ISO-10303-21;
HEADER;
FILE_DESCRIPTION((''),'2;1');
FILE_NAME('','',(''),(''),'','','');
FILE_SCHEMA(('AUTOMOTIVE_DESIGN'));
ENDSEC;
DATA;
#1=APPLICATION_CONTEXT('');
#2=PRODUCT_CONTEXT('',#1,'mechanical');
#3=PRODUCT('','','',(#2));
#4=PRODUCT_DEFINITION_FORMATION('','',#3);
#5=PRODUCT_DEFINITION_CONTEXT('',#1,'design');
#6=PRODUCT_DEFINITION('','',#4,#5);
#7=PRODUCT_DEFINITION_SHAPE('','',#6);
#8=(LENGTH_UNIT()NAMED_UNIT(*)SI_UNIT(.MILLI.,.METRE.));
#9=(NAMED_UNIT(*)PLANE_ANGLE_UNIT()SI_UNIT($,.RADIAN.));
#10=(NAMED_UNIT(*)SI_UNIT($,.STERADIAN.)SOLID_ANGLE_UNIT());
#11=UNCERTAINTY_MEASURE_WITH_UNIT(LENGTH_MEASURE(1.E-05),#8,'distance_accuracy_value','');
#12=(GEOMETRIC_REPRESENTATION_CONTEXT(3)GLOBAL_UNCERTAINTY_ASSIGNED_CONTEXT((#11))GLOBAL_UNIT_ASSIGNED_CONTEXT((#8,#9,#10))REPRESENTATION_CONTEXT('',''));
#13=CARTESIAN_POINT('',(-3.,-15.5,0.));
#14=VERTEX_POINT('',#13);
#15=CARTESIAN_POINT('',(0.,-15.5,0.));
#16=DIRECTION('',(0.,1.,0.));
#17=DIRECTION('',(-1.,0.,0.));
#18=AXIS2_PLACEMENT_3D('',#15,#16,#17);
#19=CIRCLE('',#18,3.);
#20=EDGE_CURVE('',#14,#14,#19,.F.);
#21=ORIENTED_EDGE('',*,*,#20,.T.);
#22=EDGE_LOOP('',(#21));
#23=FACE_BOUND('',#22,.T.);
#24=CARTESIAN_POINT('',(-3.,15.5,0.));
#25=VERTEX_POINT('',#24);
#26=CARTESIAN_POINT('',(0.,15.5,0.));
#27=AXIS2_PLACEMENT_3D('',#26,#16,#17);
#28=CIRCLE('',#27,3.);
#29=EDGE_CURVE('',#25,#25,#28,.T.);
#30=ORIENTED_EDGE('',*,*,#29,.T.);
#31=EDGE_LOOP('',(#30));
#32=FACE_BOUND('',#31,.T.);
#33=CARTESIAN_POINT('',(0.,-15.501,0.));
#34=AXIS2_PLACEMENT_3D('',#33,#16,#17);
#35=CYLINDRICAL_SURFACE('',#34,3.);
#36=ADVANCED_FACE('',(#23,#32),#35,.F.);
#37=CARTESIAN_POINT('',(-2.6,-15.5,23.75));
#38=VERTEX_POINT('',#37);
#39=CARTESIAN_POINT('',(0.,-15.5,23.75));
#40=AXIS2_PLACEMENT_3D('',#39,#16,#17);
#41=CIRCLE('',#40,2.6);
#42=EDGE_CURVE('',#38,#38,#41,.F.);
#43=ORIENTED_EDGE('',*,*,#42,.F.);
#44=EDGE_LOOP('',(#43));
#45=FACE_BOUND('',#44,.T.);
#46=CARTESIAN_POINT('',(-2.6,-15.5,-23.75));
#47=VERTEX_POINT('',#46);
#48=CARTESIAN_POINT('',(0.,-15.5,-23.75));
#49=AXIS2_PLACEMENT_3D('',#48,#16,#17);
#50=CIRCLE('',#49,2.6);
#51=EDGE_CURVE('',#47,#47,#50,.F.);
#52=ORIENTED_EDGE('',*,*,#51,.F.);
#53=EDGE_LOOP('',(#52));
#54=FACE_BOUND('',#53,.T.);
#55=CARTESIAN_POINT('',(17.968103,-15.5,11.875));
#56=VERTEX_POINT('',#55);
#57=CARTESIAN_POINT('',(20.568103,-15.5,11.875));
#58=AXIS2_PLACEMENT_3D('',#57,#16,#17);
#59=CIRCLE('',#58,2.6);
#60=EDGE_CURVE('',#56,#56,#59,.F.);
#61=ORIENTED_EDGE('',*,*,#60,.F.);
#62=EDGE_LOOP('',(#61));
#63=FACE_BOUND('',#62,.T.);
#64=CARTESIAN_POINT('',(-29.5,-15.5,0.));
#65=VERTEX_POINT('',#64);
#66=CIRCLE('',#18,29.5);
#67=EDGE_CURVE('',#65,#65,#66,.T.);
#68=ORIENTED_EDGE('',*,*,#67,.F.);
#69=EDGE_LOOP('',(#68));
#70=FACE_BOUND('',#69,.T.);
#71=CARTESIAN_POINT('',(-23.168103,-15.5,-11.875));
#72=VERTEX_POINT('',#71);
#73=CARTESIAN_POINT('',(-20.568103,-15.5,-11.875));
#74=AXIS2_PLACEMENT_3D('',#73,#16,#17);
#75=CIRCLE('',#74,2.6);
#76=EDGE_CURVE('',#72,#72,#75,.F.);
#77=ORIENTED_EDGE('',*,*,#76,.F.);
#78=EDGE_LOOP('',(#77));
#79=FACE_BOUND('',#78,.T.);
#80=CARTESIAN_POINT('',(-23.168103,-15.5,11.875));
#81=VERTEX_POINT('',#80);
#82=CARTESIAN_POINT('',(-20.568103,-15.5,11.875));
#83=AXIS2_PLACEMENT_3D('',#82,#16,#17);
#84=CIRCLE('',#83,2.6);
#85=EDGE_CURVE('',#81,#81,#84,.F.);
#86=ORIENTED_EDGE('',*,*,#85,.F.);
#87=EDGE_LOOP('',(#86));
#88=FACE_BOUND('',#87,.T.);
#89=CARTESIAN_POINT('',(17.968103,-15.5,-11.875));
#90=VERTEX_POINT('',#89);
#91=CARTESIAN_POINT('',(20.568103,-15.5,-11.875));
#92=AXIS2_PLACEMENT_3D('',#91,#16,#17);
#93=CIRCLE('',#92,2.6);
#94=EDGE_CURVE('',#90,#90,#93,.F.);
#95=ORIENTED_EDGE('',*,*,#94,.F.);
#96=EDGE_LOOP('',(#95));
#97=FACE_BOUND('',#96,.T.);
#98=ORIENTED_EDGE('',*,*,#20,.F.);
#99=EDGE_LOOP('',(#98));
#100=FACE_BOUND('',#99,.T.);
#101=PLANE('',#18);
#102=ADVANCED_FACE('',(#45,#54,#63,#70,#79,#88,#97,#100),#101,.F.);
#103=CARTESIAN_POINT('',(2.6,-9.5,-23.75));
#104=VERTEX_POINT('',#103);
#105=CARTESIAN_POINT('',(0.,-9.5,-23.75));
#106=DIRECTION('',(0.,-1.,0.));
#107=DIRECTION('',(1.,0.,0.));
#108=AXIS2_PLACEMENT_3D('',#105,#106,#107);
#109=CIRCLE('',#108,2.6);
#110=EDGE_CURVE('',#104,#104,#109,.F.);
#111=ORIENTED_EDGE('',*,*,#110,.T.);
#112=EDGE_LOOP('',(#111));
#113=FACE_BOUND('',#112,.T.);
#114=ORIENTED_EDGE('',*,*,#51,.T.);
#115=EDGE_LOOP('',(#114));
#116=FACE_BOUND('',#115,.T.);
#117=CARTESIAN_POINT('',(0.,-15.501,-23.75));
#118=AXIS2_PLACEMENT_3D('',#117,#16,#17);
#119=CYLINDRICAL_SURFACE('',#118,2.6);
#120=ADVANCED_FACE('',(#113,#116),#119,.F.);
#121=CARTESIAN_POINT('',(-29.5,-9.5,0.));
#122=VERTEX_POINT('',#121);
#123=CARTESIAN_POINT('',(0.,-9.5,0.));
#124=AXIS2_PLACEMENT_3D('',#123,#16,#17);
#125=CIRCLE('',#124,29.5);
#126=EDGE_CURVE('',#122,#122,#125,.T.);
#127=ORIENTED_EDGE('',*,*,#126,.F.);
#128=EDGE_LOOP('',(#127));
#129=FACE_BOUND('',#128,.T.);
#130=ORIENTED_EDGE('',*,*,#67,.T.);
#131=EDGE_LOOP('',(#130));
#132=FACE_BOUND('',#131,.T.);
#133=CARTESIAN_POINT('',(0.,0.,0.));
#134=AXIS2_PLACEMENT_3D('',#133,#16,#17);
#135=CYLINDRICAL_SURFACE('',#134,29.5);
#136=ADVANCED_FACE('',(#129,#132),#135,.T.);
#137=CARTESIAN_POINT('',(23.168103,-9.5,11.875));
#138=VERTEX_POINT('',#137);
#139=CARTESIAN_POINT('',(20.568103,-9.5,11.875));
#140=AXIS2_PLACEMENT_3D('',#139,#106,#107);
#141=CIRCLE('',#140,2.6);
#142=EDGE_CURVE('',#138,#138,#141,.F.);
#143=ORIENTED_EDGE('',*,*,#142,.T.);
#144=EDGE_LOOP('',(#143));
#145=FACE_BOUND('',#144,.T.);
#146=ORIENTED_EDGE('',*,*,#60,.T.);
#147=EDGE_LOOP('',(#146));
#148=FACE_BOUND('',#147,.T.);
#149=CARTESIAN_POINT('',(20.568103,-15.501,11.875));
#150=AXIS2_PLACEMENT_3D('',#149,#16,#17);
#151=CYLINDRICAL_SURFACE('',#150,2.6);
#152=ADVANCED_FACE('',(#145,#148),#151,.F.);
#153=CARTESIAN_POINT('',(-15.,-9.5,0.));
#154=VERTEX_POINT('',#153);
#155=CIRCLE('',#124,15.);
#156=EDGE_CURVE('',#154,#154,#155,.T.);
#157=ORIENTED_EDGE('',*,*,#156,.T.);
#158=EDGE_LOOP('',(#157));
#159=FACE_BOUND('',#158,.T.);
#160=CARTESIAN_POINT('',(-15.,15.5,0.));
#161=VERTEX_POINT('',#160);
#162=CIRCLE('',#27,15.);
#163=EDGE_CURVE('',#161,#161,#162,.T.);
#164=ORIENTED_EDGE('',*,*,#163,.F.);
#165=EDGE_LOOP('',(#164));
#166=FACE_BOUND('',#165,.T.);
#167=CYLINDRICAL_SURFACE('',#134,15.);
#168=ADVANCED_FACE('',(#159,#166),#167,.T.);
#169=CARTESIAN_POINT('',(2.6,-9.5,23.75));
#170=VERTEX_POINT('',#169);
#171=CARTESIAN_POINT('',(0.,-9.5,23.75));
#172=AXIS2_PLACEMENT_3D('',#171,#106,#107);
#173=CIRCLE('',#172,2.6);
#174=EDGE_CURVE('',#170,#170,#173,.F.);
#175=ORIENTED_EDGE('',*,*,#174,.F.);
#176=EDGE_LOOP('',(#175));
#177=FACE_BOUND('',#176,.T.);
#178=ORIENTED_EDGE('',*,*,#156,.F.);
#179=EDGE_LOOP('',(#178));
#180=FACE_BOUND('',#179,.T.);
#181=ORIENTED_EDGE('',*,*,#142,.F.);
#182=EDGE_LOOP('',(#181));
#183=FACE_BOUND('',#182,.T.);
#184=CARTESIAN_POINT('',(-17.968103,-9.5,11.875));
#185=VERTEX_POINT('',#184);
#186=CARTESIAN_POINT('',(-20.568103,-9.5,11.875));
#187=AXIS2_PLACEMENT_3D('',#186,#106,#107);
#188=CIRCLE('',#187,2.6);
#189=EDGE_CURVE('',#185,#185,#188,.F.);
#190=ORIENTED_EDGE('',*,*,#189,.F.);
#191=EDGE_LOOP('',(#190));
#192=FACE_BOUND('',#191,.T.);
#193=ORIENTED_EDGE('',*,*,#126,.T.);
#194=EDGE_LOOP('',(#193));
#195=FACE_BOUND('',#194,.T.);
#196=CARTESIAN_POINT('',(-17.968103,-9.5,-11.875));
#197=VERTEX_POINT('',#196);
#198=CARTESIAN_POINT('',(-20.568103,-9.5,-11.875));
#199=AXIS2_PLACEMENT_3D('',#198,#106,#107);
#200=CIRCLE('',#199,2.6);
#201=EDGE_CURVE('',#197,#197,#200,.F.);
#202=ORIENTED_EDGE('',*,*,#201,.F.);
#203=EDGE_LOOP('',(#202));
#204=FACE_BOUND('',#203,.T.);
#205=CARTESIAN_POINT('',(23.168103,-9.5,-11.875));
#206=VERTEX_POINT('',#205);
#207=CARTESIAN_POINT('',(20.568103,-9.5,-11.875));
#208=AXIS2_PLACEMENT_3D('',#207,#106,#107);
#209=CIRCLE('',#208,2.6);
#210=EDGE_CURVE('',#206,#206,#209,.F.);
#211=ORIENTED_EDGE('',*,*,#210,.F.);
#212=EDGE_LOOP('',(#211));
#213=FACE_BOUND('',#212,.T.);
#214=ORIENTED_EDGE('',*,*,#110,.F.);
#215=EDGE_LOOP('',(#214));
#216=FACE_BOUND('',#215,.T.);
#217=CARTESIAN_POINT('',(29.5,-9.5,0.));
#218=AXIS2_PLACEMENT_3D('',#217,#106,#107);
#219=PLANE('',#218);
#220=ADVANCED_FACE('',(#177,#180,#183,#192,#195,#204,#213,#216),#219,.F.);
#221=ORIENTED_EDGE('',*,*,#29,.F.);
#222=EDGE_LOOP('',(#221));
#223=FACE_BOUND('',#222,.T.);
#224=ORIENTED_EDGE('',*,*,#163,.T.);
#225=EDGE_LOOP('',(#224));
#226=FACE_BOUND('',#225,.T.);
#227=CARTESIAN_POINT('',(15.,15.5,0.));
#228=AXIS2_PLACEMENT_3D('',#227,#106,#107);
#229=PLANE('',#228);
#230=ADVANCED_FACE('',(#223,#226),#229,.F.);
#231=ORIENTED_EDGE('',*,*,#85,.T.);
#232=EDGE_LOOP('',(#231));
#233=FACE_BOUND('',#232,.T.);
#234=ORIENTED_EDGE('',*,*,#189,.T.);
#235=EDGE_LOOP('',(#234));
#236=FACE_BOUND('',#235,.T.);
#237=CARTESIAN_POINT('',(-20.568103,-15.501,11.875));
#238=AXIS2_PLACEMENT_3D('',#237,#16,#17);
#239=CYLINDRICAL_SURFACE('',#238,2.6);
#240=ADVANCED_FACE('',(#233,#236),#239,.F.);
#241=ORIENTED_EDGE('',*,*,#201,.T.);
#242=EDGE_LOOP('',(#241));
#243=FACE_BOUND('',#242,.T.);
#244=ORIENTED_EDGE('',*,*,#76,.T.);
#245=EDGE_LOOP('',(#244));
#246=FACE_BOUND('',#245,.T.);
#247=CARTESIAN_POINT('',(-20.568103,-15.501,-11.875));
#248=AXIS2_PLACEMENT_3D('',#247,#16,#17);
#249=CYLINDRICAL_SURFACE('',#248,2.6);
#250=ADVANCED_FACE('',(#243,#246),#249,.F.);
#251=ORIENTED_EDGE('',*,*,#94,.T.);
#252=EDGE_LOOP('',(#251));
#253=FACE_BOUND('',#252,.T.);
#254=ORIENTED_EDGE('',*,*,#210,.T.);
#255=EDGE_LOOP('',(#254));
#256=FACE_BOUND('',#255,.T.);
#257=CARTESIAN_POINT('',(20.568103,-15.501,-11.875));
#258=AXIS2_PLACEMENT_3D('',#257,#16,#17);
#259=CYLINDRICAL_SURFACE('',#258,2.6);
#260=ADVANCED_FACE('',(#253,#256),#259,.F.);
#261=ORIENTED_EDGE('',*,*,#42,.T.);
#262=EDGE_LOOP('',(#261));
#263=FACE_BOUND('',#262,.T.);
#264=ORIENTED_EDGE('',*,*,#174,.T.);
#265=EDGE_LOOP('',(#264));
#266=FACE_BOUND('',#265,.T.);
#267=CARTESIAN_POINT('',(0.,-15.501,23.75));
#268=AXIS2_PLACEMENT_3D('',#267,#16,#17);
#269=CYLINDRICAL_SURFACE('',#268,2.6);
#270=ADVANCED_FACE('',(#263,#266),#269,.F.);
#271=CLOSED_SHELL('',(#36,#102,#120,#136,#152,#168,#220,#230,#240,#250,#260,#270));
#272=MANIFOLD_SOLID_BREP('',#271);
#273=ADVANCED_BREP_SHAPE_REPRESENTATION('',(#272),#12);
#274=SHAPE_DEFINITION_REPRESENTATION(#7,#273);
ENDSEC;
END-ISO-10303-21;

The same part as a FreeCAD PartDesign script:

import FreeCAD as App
import Part
import Sketcher

V = App.Vector
Q = App.Units.Quantity


def add_polygon(sketch, points):
    """Adds a closed chain of lines whose ends are joined by coincident constraints."""
    first, n = sketch.GeometryCount, len(points)
    for a, b in zip(points, points[1:] + points[:1]):
        sketch.addGeometry(Part.LineSegment(App.Vector(*a, 0), App.Vector(*b, 0)), False)
    for i in range(n):
        sketch.addConstraint(Sketcher.Constraint("Coincident", first + i, 2, first + (i + 1) % n, 1))

doc = App.newDocument("Part")
body = doc.addObject("PartDesign::Body", "Body")

sketch1 = body.newObject("Sketcher::SketchObject", "Sketch")
sketch1.AttachmentSupport = (doc.getObject("XY_Plane"), [""])
sketch1.MapMode = "FlatFace"
add_polygon(sketch1, [(0, -15.5), (29.5, -15.5), (29.5, -9.5), (15, -9.5), (15, 15.5), (0, 15.5)])
sketch1.addConstraint(Sketcher.Constraint("Horizontal", 0))
sketch1.addConstraint(Sketcher.Constraint("Vertical", 1))
sketch1.addConstraint(Sketcher.Constraint("Horizontal", 2))
sketch1.addConstraint(Sketcher.Constraint("Vertical", 3))
sketch1.addConstraint(Sketcher.Constraint("Horizontal", 4))
sketch1.addConstraint(Sketcher.Constraint("Vertical", 5))
sketch1.addConstraint(Sketcher.Constraint("Symmetric", 4, 2, 5, 2, -1, 1))
sketch1.addConstraint(Sketcher.Constraint("DistanceX", 4, 2, 4, 1, Q("15 mm")))
sketch1.addConstraint(Sketcher.Constraint("DistanceY", 1, 1, 1, 2, Q("6 mm")))
sketch1.addConstraint(Sketcher.Constraint("DistanceY", 3, 1, 3, 2, Q("25 mm")))
sketch1.addConstraint(Sketcher.Constraint("DistanceX", 0, 1, 0, 2, Q("29.5 mm")))
revolution = body.newObject("PartDesign::Revolution", "Revolution")
revolution.Profile = sketch1
revolution.ReferenceAxis = (sketch1, ["V_Axis"])
revolution.Angle = 360

sketch2 = body.newObject("Sketcher::SketchObject", "Sketch001")
sketch2.AttachmentSupport = (doc.getObject("XZ_Plane"), [""])
sketch2.MapMode = "FlatFace"
sketch2.AttachmentOffset = App.Placement(V(0, 0, -15.5), App.Rotation())
sketch2.addGeometry(Part.Circle(V(0, 0, 0), V(0, 0, 1), 3), False)
sketch2.addConstraint(Sketcher.Constraint("Coincident", 0, 3, -1, 1))
sketch2.addConstraint(Sketcher.Constraint("Diameter", 0, Q("6 mm")))
pocket1 = body.newObject("PartDesign::Pocket", "Pocket")
pocket1.Profile = sketch2
pocket1.Type = "UpToFirst"
pocket1.Reversed = True

sketch3 = body.newObject("Sketcher::SketchObject", "Sketch002")
sketch3.AttachmentSupport = (doc.getObject("XZ_Plane"), [""])
sketch3.MapMode = "FlatFace"
sketch3.AttachmentOffset = App.Placement(V(0, 0, -15.5), App.Rotation())
sketch3.addGeometry(Part.Circle(V(0, -23.75, 0), V(0, 0, 1), 2.6), False)
sketch3.addConstraint(Sketcher.Constraint("PointOnObject", 0, 3, -2))
sketch3.addConstraint(Sketcher.Constraint("Diameter", 0, Q("5.2 mm")))
sketch3.addConstraint(Sketcher.Constraint("DistanceY", 0, 3, -1, 1, Q("23.75 mm")))
pocket2 = body.newObject("PartDesign::Pocket", "Pocket001")
pocket2.Profile = sketch3
pocket2.Length = 31
pocket2.Reversed = True

sketch4 = body.newObject("Sketcher::SketchObject", "Sketch003")
sketch4.AttachmentSupport = (doc.getObject("XZ_Plane"), [""])
sketch4.MapMode = "FlatFace"
sketch4.AttachmentOffset = App.Placement(V(0, 0, -15.5), App.Rotation())
sketch4.addGeometry(Part.Circle(V(20.568103, -11.875, 0), V(0, 0, 1), 2.6), False)
sketch4.addConstraint(Sketcher.Constraint("Diameter", 0, Q("5.2 mm")))
sketch4.addConstraint(Sketcher.Constraint("DistanceY", 0, 3, -1, 1, Q("11.875 mm")))
sketch4.addConstraint(Sketcher.Constraint("DistanceX", -1, 1, 0, 3, Q("20.568103 mm")))
pocket3 = body.newObject("PartDesign::Pocket", "Pocket002")
pocket3.Profile = sketch4
pocket3.Length = 31
pocket3.Reversed = True

sketch5 = body.newObject("Sketcher::SketchObject", "Sketch004")
sketch5.AttachmentSupport = (doc.getObject("XZ_Plane"), [""])
sketch5.MapMode = "FlatFace"
sketch5.AttachmentOffset = App.Placement(V(0, 0, -15.5), App.Rotation())
sketch5.addGeometry(Part.Circle(V(20.568103, 11.875, 0), V(0, 0, 1), 2.6), False)
sketch5.addConstraint(Sketcher.Constraint("Diameter", 0, Q("5.2 mm")))
sketch5.addConstraint(Sketcher.Constraint("DistanceY", -1, 1, 0, 3, Q("11.875 mm")))
sketch5.addConstraint(Sketcher.Constraint("DistanceX", -1, 1, 0, 3, Q("20.568103 mm")))
pocket4 = body.newObject("PartDesign::Pocket", "Pocket003")
pocket4.Profile = sketch5
pocket4.Length = 31
pocket4.Reversed = True

sketch6 = body.newObject("Sketcher::SketchObject", "Sketch005")
sketch6.AttachmentSupport = (doc.getObject("XZ_Plane"), [""])
sketch6.MapMode = "FlatFace"
sketch6.AttachmentOffset = App.Placement(V(0, 0, -15.5), App.Rotation())
sketch6.addGeometry(Part.Circle(V(0, 23.75, 0), V(0, 0, 1), 2.6), False)
sketch6.addConstraint(Sketcher.Constraint("PointOnObject", 0, 3, -2))
sketch6.addConstraint(Sketcher.Constraint("Diameter", 0, Q("5.2 mm")))
sketch6.addConstraint(Sketcher.Constraint("DistanceY", -1, 1, 0, 3, Q("23.75 mm")))
pocket5 = body.newObject("PartDesign::Pocket", "Pocket004")
pocket5.Profile = sketch6
pocket5.Length = 31
pocket5.Reversed = True

sketch7 = body.newObject("Sketcher::SketchObject", "Sketch006")
sketch7.AttachmentSupport = (doc.getObject("XZ_Plane"), [""])
sketch7.MapMode = "FlatFace"
sketch7.AttachmentOffset = App.Placement(V(0, 0, -15.5), App.Rotation())
sketch7.addGeometry(Part.Circle(V(-20.568103, 11.875, 0), V(0, 0, 1), 2.6), False)
sketch7.addConstraint(Sketcher.Constraint("Diameter", 0, Q("5.2 mm")))
sketch7.addConstraint(Sketcher.Constraint("DistanceY", -1, 1, 0, 3, Q("11.875 mm")))
sketch7.addConstraint(Sketcher.Constraint("DistanceX", 0, 3, -1, 1, Q("20.568103 mm")))
pocket6 = body.newObject("PartDesign::Pocket", "Pocket005")
pocket6.Profile = sketch7
pocket6.Length = 31
pocket6.Reversed = True

sketch8 = body.newObject("Sketcher::SketchObject", "Sketch007")
sketch8.AttachmentSupport = (doc.getObject("XZ_Plane"), [""])
sketch8.MapMode = "FlatFace"
sketch8.AttachmentOffset = App.Placement(V(0, 0, -15.5), App.Rotation())
sketch8.addGeometry(Part.Circle(V(-20.568103, -11.875, 0), V(0, 0, 1), 2.6), False)
sketch8.addConstraint(Sketcher.Constraint("Diameter", 0, Q("5.2 mm")))
sketch8.addConstraint(Sketcher.Constraint("DistanceY", 0, 3, -1, 1, Q("11.875 mm")))
sketch8.addConstraint(Sketcher.Constraint("DistanceX", 0, 3, -1, 1, Q("20.568103 mm")))
pocket7 = body.newObject("PartDesign::Pocket", "Pocket006")
pocket7.Profile = sketch8
pocket7.Length = 31
pocket7.Reversed = True

doc.recompute()
